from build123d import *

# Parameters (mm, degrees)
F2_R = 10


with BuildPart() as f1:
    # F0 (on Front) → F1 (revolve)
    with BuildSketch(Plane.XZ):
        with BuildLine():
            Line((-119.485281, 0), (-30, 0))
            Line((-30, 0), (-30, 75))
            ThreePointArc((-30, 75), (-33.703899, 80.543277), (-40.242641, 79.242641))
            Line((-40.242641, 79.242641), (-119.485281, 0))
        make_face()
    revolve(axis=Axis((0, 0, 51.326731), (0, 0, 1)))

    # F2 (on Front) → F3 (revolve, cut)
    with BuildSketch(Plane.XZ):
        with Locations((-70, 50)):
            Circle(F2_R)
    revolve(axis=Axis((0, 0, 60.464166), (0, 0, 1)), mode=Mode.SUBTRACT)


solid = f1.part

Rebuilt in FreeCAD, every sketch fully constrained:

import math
import FreeCAD as App
import Part
import Sketcher
Q = App.Units.Quantity

doc = App.newDocument("Part")
body = doc.addObject("PartDesign::Body", "Body")

sketch1 = doc.addObject("Sketcher::SketchObject", "Sketch")
body.addObject(sketch1)
sketch1.AttachmentSupport = (doc.XZ_Plane, [""])
sketch1.MapMode = "FlatFace"
sketch1.addGeometry([
    Part.LineSegment(App.Vector(-119, 0, 0), App.Vector(-30, 0, 0)),
    Part.LineSegment(App.Vector(-30, 0, 0), App.Vector(-30, 75, 0)),
    Part.ArcOfCircle(Part.Circle(App.Vector(-36, 75, 0), App.Vector(0, 0, 1), 6), math.radians(0), math.radians(135)),
    Part.LineSegment(App.Vector(-40, 79, 0), App.Vector(-119, 0, 0)),
], False)
sketch1.addConstraint([
    Sketcher.Constraint("Coincident", 0, 2, 1, 1),
    Sketcher.Constraint("Tangent", 1, 2, 2, 1),
    Sketcher.Constraint("Tangent", 2, 2, 3, 1),
    Sketcher.Constraint("Coincident", 3, 2, 0, 1),
    Sketcher.Constraint("Horizontal", 0),
    Sketcher.Constraint("Vertical", 1),
    Sketcher.Constraint("PointOnObject", 0, 2, -1),
    Sketcher.Constraint("Radius", 2, 6.0),
    Sketcher.Constraint("DistanceY", 1, 1, 1, 2, 75.0),
    Sketcher.Constraint("Angle", 3, Q("-135 deg")),
    Sketcher.Constraint("DistanceX", 2, 3, -1, 1, 36.0),
])
revolution = doc.addObject("PartDesign::Revolution", "Revolution")
body.addObject(revolution)
revolution.Profile = sketch1
revolution.ReferenceAxis = (sketch1, ["V_Axis"])
revolution.Angle = 360

sketch2 = doc.addObject("Sketcher::SketchObject", "Sketch001")
body.addObject(sketch2)
sketch2.AttachmentSupport = (doc.XZ_Plane, [""])
sketch2.MapMode = "FlatFace"
sketch2.addGeometry(Part.Circle(App.Vector(-70, 50, 0), App.Vector(0, 0, 1), 10), False)
sketch2.addConstraint([
    Sketcher.Constraint("Diameter", 0, 20.0),
    Sketcher.Constraint("DistanceX", 0, 3, -1, 1, 70.0),
    Sketcher.Constraint("DistanceY", -1, 1, 0, 3, 50.0),
])
groove = doc.addObject("PartDesign::Groove", "Groove")
body.addObject(groove)
groove.Profile = sketch2
groove.ReferenceAxis = (sketch2, ["V_Axis"])
groove.Angle = 360

doc.recompute()
